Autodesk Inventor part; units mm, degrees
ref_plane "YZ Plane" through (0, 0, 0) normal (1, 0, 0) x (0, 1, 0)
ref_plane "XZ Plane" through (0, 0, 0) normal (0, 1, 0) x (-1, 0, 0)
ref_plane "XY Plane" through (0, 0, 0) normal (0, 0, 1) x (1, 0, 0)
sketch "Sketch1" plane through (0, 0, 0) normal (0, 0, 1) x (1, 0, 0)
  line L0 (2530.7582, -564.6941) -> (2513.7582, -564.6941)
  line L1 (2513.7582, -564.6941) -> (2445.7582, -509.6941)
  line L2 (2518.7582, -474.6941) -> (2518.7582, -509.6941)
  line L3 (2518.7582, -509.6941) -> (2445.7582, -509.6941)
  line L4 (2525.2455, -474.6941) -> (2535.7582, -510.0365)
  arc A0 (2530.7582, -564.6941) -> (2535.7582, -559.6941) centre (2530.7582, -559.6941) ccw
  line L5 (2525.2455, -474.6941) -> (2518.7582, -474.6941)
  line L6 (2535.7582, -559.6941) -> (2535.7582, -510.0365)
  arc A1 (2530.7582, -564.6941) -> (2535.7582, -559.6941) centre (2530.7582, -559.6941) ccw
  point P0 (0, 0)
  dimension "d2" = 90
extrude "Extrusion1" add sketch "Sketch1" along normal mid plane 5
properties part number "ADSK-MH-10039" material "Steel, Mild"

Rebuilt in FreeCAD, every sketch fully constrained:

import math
import FreeCAD as App
import Part
import Sketcher

V = App.Vector
Q = App.Units.Quantity

doc = App.newDocument("Part")
params = doc.addObject("Spreadsheet::Sheet", "Params")
for row, (alias, value) in enumerate([
    ("sketch1_radius", "5 mm"),
    ("sketch1_width", "17 mm"),
    ("sketch1_width2", "73 mm"),
    ("sketch1_height", "35 mm"),
    ("pad1_length", "5 mm"),
], start=1):
    params.set(f"A{row}", alias)
    params.set(f"B{row}", "=" + value)
    params.setAlias(f"B{row}", alias)

body = doc.addObject("PartDesign::Body", "Body")

sketch1 = body.newObject("Sketcher::SketchObject", "Sketch")
sketch1.AttachmentSupport = (doc.getObject("XY_Plane"), [""])
sketch1.MapMode = "FlatFace"
sketch1.addGeometry([
    Part.LineSegment(V(2513.7582, -564.6941, 0), V(2530.7582, -564.6941, 0)),
    Part.ArcOfCircle(Part.Circle(V(2530.7582, -559.6941, 0), V(0, 0, 1), 5), math.radians(-90), math.radians(0)),
    Part.LineSegment(V(2535.7582, -559.6941, 0), V(2535.7582, -510.0365, 0)),
    Part.LineSegment(V(2535.7582, -510.0365, 0), V(2525.2455, -474.6941, 0)),
    Part.LineSegment(V(2525.2455, -474.6941, 0), V(2518.7582, -474.6941, 0)),
    Part.LineSegment(V(2518.7582, -474.6941, 0), V(2518.7582, -509.6941, 0)),
    Part.LineSegment(V(2518.7582, -509.6941, 0), V(2445.7582, -509.6941, 0)),
    Part.LineSegment(V(2445.7582, -509.6941, 0), V(2513.7582, -564.6941, 0)),
], False)
sketch1.addConstraint([
    Sketcher.Constraint("Tangent", 0, 2, 1, 1),
    Sketcher.Constraint("Tangent", 1, 2, 2, 1),
    Sketcher.Constraint("Coincident", 2, 2, 3, 1),
    Sketcher.Constraint("Coincident", 3, 2, 4, 1),
    Sketcher.Constraint("Coincident", 4, 2, 5, 1),
    Sketcher.Constraint("Coincident", 5, 2, 6, 1),
    Sketcher.Constraint("Coincident", 6, 2, 7, 1),
    Sketcher.Constraint("Coincident", 7, 2, 0, 1),
    Sketcher.Constraint("Horizontal", 0),
    Sketcher.Constraint("Vertical", 2),
    Sketcher.Constraint("Horizontal", 4),
    Sketcher.Constraint("Vertical", 5),
    Sketcher.Constraint("Horizontal", 6),
    Sketcher.Constraint("Radius", 1, Q("5 mm")),
    Sketcher.Constraint("DistanceY", 0, 2, 3, 2, Q("90 mm")),
    Sketcher.Constraint("DistanceX", 6, 2, 2, 2, Q("90 mm")),
    Sketcher.Constraint("DistanceX", 0, 1, 0, 2, Q("17 mm")),
    Sketcher.Constraint("DistanceX", 6, 2, 6, 1, Q("73 mm")),
    Sketcher.Constraint("DistanceY", 5, 2, 5, 1, Q("35 mm")),
    Sketcher.Constraint("DistanceX", 4, 2, 4, 1, Q("6.4873 mm")),
    Sketcher.Constraint("DistanceY", 2, 1, 2, 2, Q("49.6576 mm")),
    Sketcher.Constraint("DistanceY", 1, 3, -1, 1, Q("559.694 mm")),
    Sketcher.Constraint("DistanceX", -1, 1, 1, 3, Q("2530.7582 mm")),
])
sketch1.setExpression("Constraints[13]", "Params.sketch1_radius")
sketch1.setExpression("Constraints[16]", "Params.sketch1_width")
sketch1.setExpression("Constraints[17]", "Params.sketch1_width2")
sketch1.setExpression("Constraints[18]", "Params.sketch1_height")
pad1 = body.newObject("PartDesign::Pad", "Pad")
pad1.Profile = sketch1
pad1.setExpression("Length", "Params.pad1_length")
pad1.Midplane = True

doc.recompute()
